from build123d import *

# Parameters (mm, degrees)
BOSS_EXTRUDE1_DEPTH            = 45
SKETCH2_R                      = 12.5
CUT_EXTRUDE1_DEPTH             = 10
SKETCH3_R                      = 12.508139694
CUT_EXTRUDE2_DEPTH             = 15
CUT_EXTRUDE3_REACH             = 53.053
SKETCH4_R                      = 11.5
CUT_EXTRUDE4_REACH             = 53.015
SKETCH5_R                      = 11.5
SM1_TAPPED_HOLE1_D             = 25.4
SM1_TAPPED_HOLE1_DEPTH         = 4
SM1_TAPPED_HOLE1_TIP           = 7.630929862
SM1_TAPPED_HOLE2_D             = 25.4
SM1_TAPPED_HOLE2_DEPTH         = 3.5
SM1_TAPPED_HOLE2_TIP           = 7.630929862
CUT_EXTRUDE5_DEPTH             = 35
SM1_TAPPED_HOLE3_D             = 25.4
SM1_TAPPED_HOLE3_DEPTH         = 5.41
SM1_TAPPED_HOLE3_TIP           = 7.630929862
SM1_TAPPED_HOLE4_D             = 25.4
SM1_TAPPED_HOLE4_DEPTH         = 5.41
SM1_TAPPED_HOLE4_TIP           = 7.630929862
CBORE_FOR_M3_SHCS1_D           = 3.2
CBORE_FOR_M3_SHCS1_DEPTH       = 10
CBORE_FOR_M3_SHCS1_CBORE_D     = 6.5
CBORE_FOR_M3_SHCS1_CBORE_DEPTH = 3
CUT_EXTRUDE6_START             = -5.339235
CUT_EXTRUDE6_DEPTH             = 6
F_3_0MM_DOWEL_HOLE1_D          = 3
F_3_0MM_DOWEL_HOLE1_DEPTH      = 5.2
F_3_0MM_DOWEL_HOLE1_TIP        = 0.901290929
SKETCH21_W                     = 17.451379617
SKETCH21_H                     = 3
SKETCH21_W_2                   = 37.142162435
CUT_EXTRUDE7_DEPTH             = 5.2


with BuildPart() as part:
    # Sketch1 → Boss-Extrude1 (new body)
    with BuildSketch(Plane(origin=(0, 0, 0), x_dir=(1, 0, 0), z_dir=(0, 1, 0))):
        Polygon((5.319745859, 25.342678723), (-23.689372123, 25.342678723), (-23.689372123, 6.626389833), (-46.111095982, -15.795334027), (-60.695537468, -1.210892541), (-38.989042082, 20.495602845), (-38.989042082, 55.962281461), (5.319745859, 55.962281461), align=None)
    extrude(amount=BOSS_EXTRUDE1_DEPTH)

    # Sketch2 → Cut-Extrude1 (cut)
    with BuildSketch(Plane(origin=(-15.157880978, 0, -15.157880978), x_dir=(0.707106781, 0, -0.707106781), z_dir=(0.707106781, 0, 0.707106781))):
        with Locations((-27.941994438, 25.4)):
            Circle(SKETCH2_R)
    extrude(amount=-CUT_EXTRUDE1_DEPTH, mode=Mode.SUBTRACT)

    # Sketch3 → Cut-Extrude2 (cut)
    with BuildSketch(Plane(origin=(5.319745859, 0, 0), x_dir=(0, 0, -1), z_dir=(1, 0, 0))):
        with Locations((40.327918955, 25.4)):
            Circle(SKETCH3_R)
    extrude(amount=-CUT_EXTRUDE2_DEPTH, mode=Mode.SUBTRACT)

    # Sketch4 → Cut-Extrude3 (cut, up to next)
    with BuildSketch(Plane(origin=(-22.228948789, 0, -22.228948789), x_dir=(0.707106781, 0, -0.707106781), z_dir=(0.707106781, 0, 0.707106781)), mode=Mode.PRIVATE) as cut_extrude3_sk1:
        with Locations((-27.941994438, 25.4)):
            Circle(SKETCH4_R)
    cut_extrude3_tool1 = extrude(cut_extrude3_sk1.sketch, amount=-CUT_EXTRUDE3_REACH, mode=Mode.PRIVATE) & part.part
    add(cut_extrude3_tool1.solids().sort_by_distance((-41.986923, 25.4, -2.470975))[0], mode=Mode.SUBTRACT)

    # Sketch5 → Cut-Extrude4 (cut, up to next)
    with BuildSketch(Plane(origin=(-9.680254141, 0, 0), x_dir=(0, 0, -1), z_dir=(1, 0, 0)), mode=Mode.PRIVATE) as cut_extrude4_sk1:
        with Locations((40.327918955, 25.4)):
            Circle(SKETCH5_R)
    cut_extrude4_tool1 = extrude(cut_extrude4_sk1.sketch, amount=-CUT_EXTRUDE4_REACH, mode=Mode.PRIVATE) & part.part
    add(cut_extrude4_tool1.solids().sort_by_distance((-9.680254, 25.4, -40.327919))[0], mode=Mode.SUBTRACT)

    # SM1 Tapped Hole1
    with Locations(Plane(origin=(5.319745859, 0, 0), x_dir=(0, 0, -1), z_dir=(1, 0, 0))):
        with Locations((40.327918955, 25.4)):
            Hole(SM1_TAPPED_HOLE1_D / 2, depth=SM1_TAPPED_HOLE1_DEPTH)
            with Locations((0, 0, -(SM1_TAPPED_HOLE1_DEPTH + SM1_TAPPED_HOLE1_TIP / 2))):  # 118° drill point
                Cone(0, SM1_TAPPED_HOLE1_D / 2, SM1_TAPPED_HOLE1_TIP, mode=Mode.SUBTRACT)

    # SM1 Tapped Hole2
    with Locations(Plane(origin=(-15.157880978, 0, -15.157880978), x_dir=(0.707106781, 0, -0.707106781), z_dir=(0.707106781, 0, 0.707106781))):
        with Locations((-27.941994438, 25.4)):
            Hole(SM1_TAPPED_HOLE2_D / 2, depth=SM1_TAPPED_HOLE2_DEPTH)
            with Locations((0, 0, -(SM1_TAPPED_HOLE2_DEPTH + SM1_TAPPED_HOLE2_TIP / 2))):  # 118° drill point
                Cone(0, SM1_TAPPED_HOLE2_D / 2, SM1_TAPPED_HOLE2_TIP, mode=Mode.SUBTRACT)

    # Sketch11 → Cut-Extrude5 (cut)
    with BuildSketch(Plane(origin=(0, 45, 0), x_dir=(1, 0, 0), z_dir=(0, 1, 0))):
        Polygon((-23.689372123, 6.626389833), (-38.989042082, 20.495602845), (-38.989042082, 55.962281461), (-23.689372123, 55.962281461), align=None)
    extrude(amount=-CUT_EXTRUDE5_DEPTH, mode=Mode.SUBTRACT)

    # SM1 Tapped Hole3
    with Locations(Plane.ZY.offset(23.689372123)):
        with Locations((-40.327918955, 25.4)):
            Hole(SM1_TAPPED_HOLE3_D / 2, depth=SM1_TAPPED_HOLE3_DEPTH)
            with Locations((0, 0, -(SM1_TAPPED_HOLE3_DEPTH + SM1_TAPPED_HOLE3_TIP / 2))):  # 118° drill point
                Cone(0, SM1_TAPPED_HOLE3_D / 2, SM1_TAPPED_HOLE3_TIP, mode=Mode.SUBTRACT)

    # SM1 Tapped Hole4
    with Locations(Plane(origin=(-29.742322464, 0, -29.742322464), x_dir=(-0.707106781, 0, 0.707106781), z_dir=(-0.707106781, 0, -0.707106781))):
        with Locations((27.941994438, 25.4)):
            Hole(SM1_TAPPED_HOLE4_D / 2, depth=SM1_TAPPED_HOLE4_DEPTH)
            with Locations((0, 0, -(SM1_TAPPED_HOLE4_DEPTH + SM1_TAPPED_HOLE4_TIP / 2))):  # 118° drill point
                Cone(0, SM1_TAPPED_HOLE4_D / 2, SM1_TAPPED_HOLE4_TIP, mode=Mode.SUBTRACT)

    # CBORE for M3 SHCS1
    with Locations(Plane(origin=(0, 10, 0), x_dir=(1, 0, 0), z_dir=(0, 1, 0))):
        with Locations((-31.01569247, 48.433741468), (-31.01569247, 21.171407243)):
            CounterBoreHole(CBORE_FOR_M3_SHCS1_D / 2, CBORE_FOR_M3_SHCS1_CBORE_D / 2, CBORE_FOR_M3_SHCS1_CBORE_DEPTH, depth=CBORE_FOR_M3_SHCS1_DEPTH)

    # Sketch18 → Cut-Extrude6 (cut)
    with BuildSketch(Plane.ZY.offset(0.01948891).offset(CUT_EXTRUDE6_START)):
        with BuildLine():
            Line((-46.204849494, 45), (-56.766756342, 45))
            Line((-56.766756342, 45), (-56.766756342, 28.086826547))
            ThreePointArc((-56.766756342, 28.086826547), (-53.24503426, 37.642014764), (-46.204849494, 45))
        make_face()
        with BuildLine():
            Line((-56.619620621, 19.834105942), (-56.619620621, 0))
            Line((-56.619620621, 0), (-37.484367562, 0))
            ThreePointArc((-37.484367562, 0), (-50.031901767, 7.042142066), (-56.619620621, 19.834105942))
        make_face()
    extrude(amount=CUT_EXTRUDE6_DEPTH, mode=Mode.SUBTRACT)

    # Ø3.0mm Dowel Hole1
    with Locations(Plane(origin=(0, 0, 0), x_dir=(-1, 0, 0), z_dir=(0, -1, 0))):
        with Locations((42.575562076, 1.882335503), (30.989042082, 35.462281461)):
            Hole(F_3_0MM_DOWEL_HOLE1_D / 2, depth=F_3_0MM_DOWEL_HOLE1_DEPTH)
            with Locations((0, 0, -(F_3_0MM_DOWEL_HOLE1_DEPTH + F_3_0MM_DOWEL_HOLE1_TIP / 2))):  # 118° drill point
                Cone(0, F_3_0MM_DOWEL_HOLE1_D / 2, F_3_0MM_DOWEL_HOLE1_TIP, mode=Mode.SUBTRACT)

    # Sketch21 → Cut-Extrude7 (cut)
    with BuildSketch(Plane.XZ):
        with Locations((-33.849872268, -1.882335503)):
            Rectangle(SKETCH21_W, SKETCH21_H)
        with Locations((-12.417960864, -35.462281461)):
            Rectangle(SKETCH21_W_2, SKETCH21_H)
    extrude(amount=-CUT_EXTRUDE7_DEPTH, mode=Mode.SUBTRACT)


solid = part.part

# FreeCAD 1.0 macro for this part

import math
import FreeCAD as App
import Part
import Sketcher
Q = App.Units.Quantity

doc = App.newDocument("Part")
body = doc.addObject("PartDesign::Body", "Body")

sketch1 = body.newObject("Sketcher::SketchObject", "Sketch")
sketch1.AttachmentSupport = (doc.getObject("XZ_Plane"), [""])
sketch1.MapMode = "FlatFace"
sketch1.addGeometry([
    Part.LineSegment(App.Vector(-24, -25, 0), App.Vector(5, -25, 0)),
    Part.LineSegment(App.Vector(5, -25, 0), App.Vector(5, -56, 0)),
    Part.LineSegment(App.Vector(5, -56, 0), App.Vector(-39, -56, 0)),
    Part.LineSegment(App.Vector(-39, -56, 0), App.Vector(-39, -20, 0)),
    Part.LineSegment(App.Vector(-39, -20, 0), App.Vector(-61, 1, 0)),
    Part.LineSegment(App.Vector(-61, 1, 0), App.Vector(-46, 16, 0)),
    Part.LineSegment(App.Vector(-46, 16, 0), App.Vector(-24, -7, 0)),
    Part.LineSegment(App.Vector(-24, -7, 0), App.Vector(-24, -25, 0)),
], False)
sketch1.addConstraint([
    Sketcher.Constraint("Coincident", 0, 2, 1, 1),
    Sketcher.Constraint("Coincident", 1, 2, 2, 1),
    Sketcher.Constraint("Coincident", 2, 2, 3, 1),
    Sketcher.Constraint("Coincident", 3, 2, 4, 1),
    Sketcher.Constraint("Coincident", 4, 2, 5, 1),
    Sketcher.Constraint("Coincident", 5, 2, 6, 1),
    Sketcher.Constraint("Coincident", 6, 2, 7, 1),
    Sketcher.Constraint("Coincident", 7, 2, 0, 1),
    Sketcher.Constraint("Horizontal", 0),
    Sketcher.Constraint("Vertical", 1),
    Sketcher.Constraint("Horizontal", 2),
    Sketcher.Constraint("Vertical", 3),
    Sketcher.Constraint("Vertical", 7),
    Sketcher.Constraint("Perpendicular", 4, 5),
    Sketcher.Constraint("Perpendicular", 5, 6),
    Sketcher.Constraint("Angle", 4, Q("135 deg")),
    Sketcher.Constraint("DistanceY", 3, 1, 3, 2, 35.466679),
    Sketcher.Constraint("DistanceY", 7, 2, 7, 1, 18.716289),
    Sketcher.Constraint("Distance", 4, 30.69762),
    Sketcher.Constraint("DistanceX", 0, 1, 0, 2, 29.009118),
    Sketcher.Constraint("DistanceX", 2, 2, 2, 1, 44.308788),
    Sketcher.Constraint("DistanceY", 1, 2, 1, 1, 30.619603),
    Sketcher.Constraint("DistanceY", 0, 2, -1, 1, 25.342679),
    Sketcher.Constraint("DistanceX", -1, 1, 0, 2, 5.319746),
])
pad1 = body.newObject("PartDesign::Pad", "Pad")
pad1.Profile = sketch1
pad1.Length = 45
pad1.Reversed = True

sketch2 = body.newObject("Sketcher::SketchObject", "Sketch001")
sketch2.Placement = App.Placement(App.Vector(-15.157881, 0, -15.157881), App.Rotation(App.Vector(0.707106781, 0, -0.707106781), App.Vector(0, 0.999999999, 0), App.Vector(0.707106781, 0, 0.707106781), "ZXY"))
sketch2.addGeometry(Part.Circle(App.Vector(-28, 25, 0), App.Vector(0, 0, 1), 12), False)
sketch2.addConstraint([
    Sketcher.Constraint("Diameter", 0, 25.0),
    Sketcher.Constraint("DistanceY", -1, 1, 0, 3, 25.4),
    Sketcher.Constraint("DistanceX", 0, 3, -1, 1, 27.941994),
])
pocket1 = body.newObject("PartDesign::Pocket", "Pocket")
pocket1.Profile = sketch2
pocket1.Length = 10

sketch3 = body.newObject("Sketcher::SketchObject", "Sketch002")
sketch3.AttachmentSupport = (doc.getObject("YZ_Plane"), [""])
sketch3.MapMode = "FlatFace"
sketch3.AttachmentOffset = App.Placement(App.Vector(0, 0, 5.319746), App.Rotation())
sketch3.addGeometry(Part.Circle(App.Vector(25, -40, 0), App.Vector(0, 0, 1), 13), False)
sketch3.addConstraint([
    Sketcher.Constraint("DistanceX", -1, 1, 0, 3, 25.4),
    Sketcher.Constraint("Diameter", 0, 25.016279),
    Sketcher.Constraint("DistanceY", 0, 3, -1, 1, 40.327919),
])
pocket2 = body.newObject("PartDesign::Pocket", "Pocket001")
pocket2.Profile = sketch3
pocket2.Length = 15

sketch4 = body.newObject("Sketcher::SketchObject", "Sketch003")
sketch4.Placement = App.Placement(App.Vector(-22.228949, 0, -22.228949), App.Rotation(App.Vector(0.707106781, 0, -0.707106781), App.Vector(0, 0.999999999, 0), App.Vector(0.707106781, 0, 0.707106781), "ZXY"))
sketch4.addGeometry(Part.Circle(App.Vector(-28, 25, 0), App.Vector(0, 0, 1), 12), False)
sketch4.addConstraint([
    Sketcher.Constraint("Diameter", 0, 23.0),
    Sketcher.Constraint("DistanceY", -1, 1, 0, 3, 25.4),
    Sketcher.Constraint("DistanceX", 0, 3, -1, 1, 27.941994),
])
pocket3 = body.newObject("PartDesign::Pocket", "Pocket002")
pocket3.Profile = sketch4
pocket3.Type = "UpToFirst"

sketch5 = body.newObject("Sketcher::SketchObject", "Sketch004")
sketch5.AttachmentSupport = (doc.getObject("YZ_Plane"), [""])
sketch5.MapMode = "FlatFace"
sketch5.AttachmentOffset = App.Placement(App.Vector(0, 0, -9.680254), App.Rotation())
sketch5.addGeometry(Part.Circle(App.Vector(25, -40, 0), App.Vector(0, 0, 1), 12), False)
sketch5.addConstraint([
    Sketcher.Constraint("Diameter", 0, 23.0),
    Sketcher.Constraint("DistanceX", -1, 1, 0, 3, 25.4),
    Sketcher.Constraint("DistanceY", 0, 3, -1, 1, 40.327919),
])
pocket4 = body.newObject("PartDesign::Pocket", "Pocket003")
pocket4.Profile = sketch5
pocket4.Type = "UpToFirst"

sketch6 = body.newObject("Sketcher::SketchObject", "Sketch005")
sketch6.AttachmentSupport = (doc.getObject("YZ_Plane"), [""])
sketch6.MapMode = "FlatFace"
sketch6.AttachmentOffset = App.Placement(App.Vector(0, 0, 5.319746), App.Rotation())
sketch6.addGeometry(Part.Circle(App.Vector(25, -40, 0), App.Vector(0, 0, 1), 13), False)
sketch6.addConstraint([
    Sketcher.Constraint("Diameter", 0, 25.4),
    Sketcher.Constraint("DistanceX", -1, 1, 0, 3, 25.4),
    Sketcher.Constraint("DistanceY", 0, 3, -1, 1, 40.327919),
])
doc.recompute()
hole = body.newObject("PartDesign::Hole", "Hole")
hole.Profile = sketch6
hole.ThreadType = "None"
hole.Diameter = 25.4
hole.DepthType = "Dimension"
hole.Depth = 4
hole.DrillPoint = "Angled"
hole.DrillPointAngle = 118

sketch7 = body.newObject("Sketcher::SketchObject", "Sketch006")
sketch7.Placement = App.Placement(App.Vector(-15.157881, 0, -15.157881), App.Rotation(App.Vector(0.707106781, 0, -0.707106781), App.Vector(0, 0.999999999, 0), App.Vector(0.707106781, 0, 0.707106781), "ZXY"))
sketch7.addGeometry(Part.Circle(App.Vector(-28, 25, 0), App.Vector(0, 0, 1), 13), False)
sketch7.addConstraint([
    Sketcher.Constraint("Diameter", 0, 25.4),
    Sketcher.Constraint("DistanceY", -1, 1, 0, 3, 25.4),
    Sketcher.Constraint("DistanceX", 0, 3, -1, 1, 27.941994),
])
doc.recompute()
hole2 = body.newObject("PartDesign::Hole", "Hole001")
hole2.Profile = sketch7
hole2.ThreadType = "None"
hole2.Diameter = 25.4
hole2.DepthType = "Dimension"
hole2.Depth = 3.5
hole2.DrillPoint = "Angled"
hole2.DrillPointAngle = 118

sketch8 = body.newObject("Sketcher::SketchObject", "Sketch007")
sketch8.AttachmentSupport = (doc.getObject("XZ_Plane"), [""])
sketch8.MapMode = "FlatFace"
sketch8.AttachmentOffset = App.Placement(App.Vector(0, 0, -45), App.Rotation())
sketch8.addGeometry([
    Part.LineSegment(App.Vector(-39, -20, 0), App.Vector(-24, -7, 0)),
    Part.LineSegment(App.Vector(-24, -7, 0), App.Vector(-24, -56, 0)),
    Part.LineSegment(App.Vector(-24, -56, 0), App.Vector(-39, -56, 0)),
    Part.LineSegment(App.Vector(-39, -56, 0), App.Vector(-39, -20, 0)),
], False)
sketch8.addConstraint([
    Sketcher.Constraint("Coincident", 0, 2, 1, 1),
    Sketcher.Constraint("Coincident", 1, 2, 2, 1),
    Sketcher.Constraint("Coincident", 2, 2, 3, 1),
    Sketcher.Constraint("Coincident", 3, 2, 0, 1),
    Sketcher.Constraint("Vertical", 1),
    Sketcher.Constraint("Horizontal", 2),
    Sketcher.Constraint("Vertical", 3),
    Sketcher.Constraint("Distance", 0, 20.650302),
    Sketcher.Constraint("DistanceX", 2, 2, 2, 1, 15.29967),
    Sketcher.Constraint("DistanceY", 1, 2, 1, 1, 49.335892),
    Sketcher.Constraint("DistanceY", 0, 2, -1, 1, 6.62639),
    Sketcher.Constraint("DistanceX", 0, 2, -1, 1, 23.689372),
])
pocket5 = body.newObject("PartDesign::Pocket", "Pocket004")
pocket5.Profile = sketch8
pocket5.Length = 35
pocket5.Reversed = True

sketch9 = body.newObject("Sketcher::SketchObject", "Sketch008")
sketch9.AttachmentSupport = (doc.getObject("YZ_Plane"), [""])
sketch9.MapMode = "FlatFace"
sketch9.AttachmentOffset = App.Placement(App.Vector(0, 0, -23.689372), App.Rotation())
sketch9.addGeometry(Part.Circle(App.Vector(25, -40, 0), App.Vector(0, 0, 1), 13), False)
sketch9.addConstraint([
    Sketcher.Constraint("Diameter", 0, 25.4),
    Sketcher.Constraint("DistanceX", -1, 1, 0, 3, 25.4),
    Sketcher.Constraint("DistanceY", 0, 3, -1, 1, 40.327919),
])
doc.recompute()
hole3 = body.newObject("PartDesign::Hole", "Hole002")
hole3.Profile = sketch9
hole3.ThreadType = "None"
hole3.Diameter = 25.4
hole3.DepthType = "Dimension"
hole3.Depth = 5.41
hole3.DrillPoint = "Angled"
hole3.DrillPointAngle = 118
hole3.Reversed = True

sketch10 = body.newObject("Sketcher::SketchObject", "Sketch009")
sketch10.Placement = App.Placement(App.Vector(-29.742322, 0, -29.742322), App.Rotation(App.Vector(-0.707106781, 0, 0.707106781), App.Vector(0, 0.999999999, 0), App.Vector(-0.707106781, 0, -0.707106781), "ZXY"))
sketch10.addGeometry(Part.Circle(App.Vector(28, 25, 0), App.Vector(0, 0, 1), 13), False)
sketch10.addConstraint([
    Sketcher.Constraint("Diameter", 0, 25.4),
    Sketcher.Constraint("DistanceY", -1, 1, 0, 3, 25.4),
    Sketcher.Constraint("DistanceX", -1, 1, 0, 3, 27.941994),
])
doc.recompute()
hole4 = body.newObject("PartDesign::Hole", "Hole003")
hole4.Profile = sketch10
hole4.ThreadType = "None"
hole4.Diameter = 25.4
hole4.DepthType = "Dimension"
hole4.Depth = 5.41
hole4.DrillPoint = "Angled"
hole4.DrillPointAngle = 118

sketch11 = body.newObject("Sketcher::SketchObject", "Sketch010")
sketch11.AttachmentSupport = (doc.getObject("XZ_Plane"), [""])
sketch11.MapMode = "FlatFace"
sketch11.AttachmentOffset = App.Placement(App.Vector(0, 0, -10), App.Rotation())
sketch11.addGeometry([
    Part.Circle(App.Vector(-31, -48.4, 0), App.Vector(0, 0, 1), 1.6),
    Part.Circle(App.Vector(-31, -21.2, 0), App.Vector(0, 0, 1), 1.6),
], False)
sketch11.addConstraint([
    Sketcher.Constraint("Equal", 0, 1),
    Sketcher.Constraint("Vertical", 0, 3, 1, 3),
    Sketcher.Constraint("Diameter", 0, 3.2),
    Sketcher.Constraint("DistanceY", 0, 3, -1, 1, 48.433741),
    Sketcher.Constraint("DistanceX", 0, 3, -1, 1, 31.015692),
    Sketcher.Constraint("DistanceY", 1, 3, -1, 1, 21.171407),
])
doc.recompute()
hole5 = body.newObject("PartDesign::Hole", "Hole004")
hole5.Profile = sketch11
hole5.ThreadType = "None"
hole5.Diameter = 3.2
hole5.DepthType = "Dimension"
hole5.Depth = 10
hole5.DrillPoint = "Flat"
hole5.HoleCutType = "Counterbore"
hole5.HoleCutDiameter = 6.5
hole5.HoleCutDepth = 3
hole5.Reversed = True

sketch12 = body.newObject("Sketcher::SketchObject", "Sketch011")
sketch12.AttachmentSupport = (doc.getObject("YZ_Plane"), [""])
sketch12.MapMode = "FlatFace"
sketch12.AttachmentOffset = App.Placement(App.Vector(0, 0, 5.319746), App.Rotation())
sketch12.addGeometry([
    Part.LineSegment(App.Vector(45, -46, 0), App.Vector(45, -57, 0)),
    Part.LineSegment(App.Vector(45, -57, 0), App.Vector(28, -57, 0)),
    Part.ArcOfCircle(Part.Circle(App.Vector(24, -32, 0), App.Vector(0, 0, 1), 25), math.radians(-82), math.radians(-35)),
    Part.LineSegment(App.Vector(20, -57, 0), App.Vector(0, -57, 0)),
    Part.LineSegment(App.Vector(0, -57, 0), App.Vector(0, -37, 0)),
    Part.ArcOfCircle(Part.Circle(App.Vector(24, -32, 0), App.Vector(0, 0, 1), 25), math.radians(-167), math.radians(-101)),
], False)
sketch12.addConstraint([
    Sketcher.Constraint("Coincident", 0, 2, 1, 1),
    Sketcher.Constraint("Coincident", 1, 2, 2, 1),
    Sketcher.Constraint("Coincident", 2, 2, 0, 1),
    Sketcher.Constraint("Coincident", 3, 2, 4, 1),
    Sketcher.Constraint("Coincident", 4, 2, 5, 1),
    Sketcher.Constraint("Coincident", 5, 2, 3, 1),
    Sketcher.Constraint("Vertical", 0),
    Sketcher.Constraint("Horizontal", 1),
    Sketcher.Constraint("Horizontal", 3),
    Sketcher.Constraint("Vertical", 4),
    Sketcher.Constraint("Coincident", 5, 3, 2, 3),
    Sketcher.Constraint("Equal", 2, 5),
    Sketcher.Constraint("PointOnObject", 3, 2, -2),
    Sketcher.Constraint("Radius", 2, 25.0),
    Sketcher.Constraint("DistanceX", -1, 1, 0, 2, 45.0),
    Sketcher.Constraint("DistanceX", -1, 1, 2, 3, 24.4),
    Sketcher.Constraint("DistanceX", 1, 2, 1, 1, 16.913173),
    Sketcher.Constraint("DistanceX", 3, 2, 3, 1, 19.834106),
    Sketcher.Constraint("DistanceY", 2, 2, -1, 1, 46.204849),
])
pocket6 = body.newObject("PartDesign::Pocket", "Pocket005")
pocket6.Profile = sketch12
pocket6.Length = 6

sketch13 = body.newObject("Sketcher::SketchObject", "Sketch012")
sketch13.AttachmentSupport = (doc.getObject("XZ_Plane"), [""])
sketch13.MapMode = "FlatFace"
sketch13.addGeometry([
    Part.Circle(App.Vector(-42.6, -1.9, 0), App.Vector(0, 0, 1), 1.5),
    Part.Circle(App.Vector(-31, -35.5, 0), App.Vector(0, 0, 1), 1.5),
], False)
sketch13.addConstraint([
    Sketcher.Constraint("Equal", 0, 1),
    Sketcher.Constraint("Diameter", 0, 3.0),
    Sketcher.Constraint("DistanceY", 1, 3, -1, 1, 35.462281),
    Sketcher.Constraint("DistanceX", 0, 3, 1, 3, 11.58652),
    Sketcher.Constraint("DistanceX", 0, 3, -1, 1, 42.575562),
    Sketcher.Constraint("DistanceY", 0, 3, -1, 1, 1.882336),
])
doc.recompute()
hole6 = body.newObject("PartDesign::Hole", "Hole005")
hole6.Profile = sketch13
hole6.ThreadType = "None"
hole6.Diameter = 3
hole6.DepthType = "Dimension"
hole6.Depth = 5.2
hole6.DrillPoint = "Angled"
hole6.DrillPointAngle = 118

sketch14 = body.newObject("Sketcher::SketchObject", "Sketch013")
sketch14.AttachmentSupport = (doc.getObject("XZ_Plane"), [""])
sketch14.MapMode = "FlatFace"
sketch14.addGeometry([
    Part.LineSegment(App.Vector(-42.6, -0.4, 0), App.Vector(-42.6, -3.4, 0)),
    Part.LineSegment(App.Vector(-42.6, -3.4, 0), App.Vector(-25.1, -3.4, 0)),
    Part.LineSegment(App.Vector(-25.1, -3.4, 0), App.Vector(-25.1, -0.4, 0)),
    Part.LineSegment(App.Vector(-25.1, -0.4, 0), App.Vector(-42.6, -0.4, 0)),
    Part.LineSegment(App.Vector(-31, -34, 0), App.Vector(-31, -37, 0)),
    Part.LineSegment(App.Vector(-31, -37, 0), App.Vector(6.2, -37, 0)),
    Part.LineSegment(App.Vector(6.2, -37, 0), App.Vector(6.2, -34, 0)),
    Part.LineSegment(App.Vector(6.2, -34, 0), App.Vector(-31, -34, 0)),
], False)
sketch14.addConstraint([
    Sketcher.Constraint("Coincident", 0, 2, 1, 1),
    Sketcher.Constraint("Coincident", 1, 2, 2, 1),
    Sketcher.Constraint("Coincident", 2, 2, 3, 1),
    Sketcher.Constraint("Coincident", 3, 2, 0, 1),
    Sketcher.Constraint("Coincident", 4, 2, 5, 1),
    Sketcher.Constraint("Coincident", 5, 2, 6, 1),
    Sketcher.Constraint("Coincident", 6, 2, 7, 1),
    Sketcher.Constraint("Coincident", 7, 2, 4, 1),
    Sketcher.Constraint("Vertical", 0),
    Sketcher.Constraint("Horizontal", 1),
    Sketcher.Constraint("Vertical", 2),
    Sketcher.Constraint("Horizontal", 3),
    Sketcher.Constraint("Vertical", 4),
    Sketcher.Constraint("Horizontal", 5),
    Sketcher.Constraint("Vertical", 6),
    Sketcher.Constraint("Horizontal", 7),
    Sketcher.Constraint("Equal", 2, 4),
    Sketcher.Constraint("DistanceY", 0, 2, 0, 1, 3.0),
    Sketcher.Constraint("DistanceX", 1, 1, 1, 2, 17.45138),
    Sketcher.Constraint("DistanceX", 5, 1, 5, 2, 37.142162),
    Sketcher.Constraint("DistanceY", 4, 2, -1, 1, 36.962281),
    Sketcher.Constraint("DistanceX", -1, 1, 5, 2, 6.15312),
    Sketcher.Constraint("DistanceX", 4, 2, 1, 2, 5.86486),
    Sketcher.Constraint("DistanceY", 0, 2, -1, 1, 3.382336),
])
pocket7 = body.newObject("PartDesign::Pocket", "Pocket006")
pocket7.Profile = sketch14
pocket7.Length = 5.2

doc.recompute()
